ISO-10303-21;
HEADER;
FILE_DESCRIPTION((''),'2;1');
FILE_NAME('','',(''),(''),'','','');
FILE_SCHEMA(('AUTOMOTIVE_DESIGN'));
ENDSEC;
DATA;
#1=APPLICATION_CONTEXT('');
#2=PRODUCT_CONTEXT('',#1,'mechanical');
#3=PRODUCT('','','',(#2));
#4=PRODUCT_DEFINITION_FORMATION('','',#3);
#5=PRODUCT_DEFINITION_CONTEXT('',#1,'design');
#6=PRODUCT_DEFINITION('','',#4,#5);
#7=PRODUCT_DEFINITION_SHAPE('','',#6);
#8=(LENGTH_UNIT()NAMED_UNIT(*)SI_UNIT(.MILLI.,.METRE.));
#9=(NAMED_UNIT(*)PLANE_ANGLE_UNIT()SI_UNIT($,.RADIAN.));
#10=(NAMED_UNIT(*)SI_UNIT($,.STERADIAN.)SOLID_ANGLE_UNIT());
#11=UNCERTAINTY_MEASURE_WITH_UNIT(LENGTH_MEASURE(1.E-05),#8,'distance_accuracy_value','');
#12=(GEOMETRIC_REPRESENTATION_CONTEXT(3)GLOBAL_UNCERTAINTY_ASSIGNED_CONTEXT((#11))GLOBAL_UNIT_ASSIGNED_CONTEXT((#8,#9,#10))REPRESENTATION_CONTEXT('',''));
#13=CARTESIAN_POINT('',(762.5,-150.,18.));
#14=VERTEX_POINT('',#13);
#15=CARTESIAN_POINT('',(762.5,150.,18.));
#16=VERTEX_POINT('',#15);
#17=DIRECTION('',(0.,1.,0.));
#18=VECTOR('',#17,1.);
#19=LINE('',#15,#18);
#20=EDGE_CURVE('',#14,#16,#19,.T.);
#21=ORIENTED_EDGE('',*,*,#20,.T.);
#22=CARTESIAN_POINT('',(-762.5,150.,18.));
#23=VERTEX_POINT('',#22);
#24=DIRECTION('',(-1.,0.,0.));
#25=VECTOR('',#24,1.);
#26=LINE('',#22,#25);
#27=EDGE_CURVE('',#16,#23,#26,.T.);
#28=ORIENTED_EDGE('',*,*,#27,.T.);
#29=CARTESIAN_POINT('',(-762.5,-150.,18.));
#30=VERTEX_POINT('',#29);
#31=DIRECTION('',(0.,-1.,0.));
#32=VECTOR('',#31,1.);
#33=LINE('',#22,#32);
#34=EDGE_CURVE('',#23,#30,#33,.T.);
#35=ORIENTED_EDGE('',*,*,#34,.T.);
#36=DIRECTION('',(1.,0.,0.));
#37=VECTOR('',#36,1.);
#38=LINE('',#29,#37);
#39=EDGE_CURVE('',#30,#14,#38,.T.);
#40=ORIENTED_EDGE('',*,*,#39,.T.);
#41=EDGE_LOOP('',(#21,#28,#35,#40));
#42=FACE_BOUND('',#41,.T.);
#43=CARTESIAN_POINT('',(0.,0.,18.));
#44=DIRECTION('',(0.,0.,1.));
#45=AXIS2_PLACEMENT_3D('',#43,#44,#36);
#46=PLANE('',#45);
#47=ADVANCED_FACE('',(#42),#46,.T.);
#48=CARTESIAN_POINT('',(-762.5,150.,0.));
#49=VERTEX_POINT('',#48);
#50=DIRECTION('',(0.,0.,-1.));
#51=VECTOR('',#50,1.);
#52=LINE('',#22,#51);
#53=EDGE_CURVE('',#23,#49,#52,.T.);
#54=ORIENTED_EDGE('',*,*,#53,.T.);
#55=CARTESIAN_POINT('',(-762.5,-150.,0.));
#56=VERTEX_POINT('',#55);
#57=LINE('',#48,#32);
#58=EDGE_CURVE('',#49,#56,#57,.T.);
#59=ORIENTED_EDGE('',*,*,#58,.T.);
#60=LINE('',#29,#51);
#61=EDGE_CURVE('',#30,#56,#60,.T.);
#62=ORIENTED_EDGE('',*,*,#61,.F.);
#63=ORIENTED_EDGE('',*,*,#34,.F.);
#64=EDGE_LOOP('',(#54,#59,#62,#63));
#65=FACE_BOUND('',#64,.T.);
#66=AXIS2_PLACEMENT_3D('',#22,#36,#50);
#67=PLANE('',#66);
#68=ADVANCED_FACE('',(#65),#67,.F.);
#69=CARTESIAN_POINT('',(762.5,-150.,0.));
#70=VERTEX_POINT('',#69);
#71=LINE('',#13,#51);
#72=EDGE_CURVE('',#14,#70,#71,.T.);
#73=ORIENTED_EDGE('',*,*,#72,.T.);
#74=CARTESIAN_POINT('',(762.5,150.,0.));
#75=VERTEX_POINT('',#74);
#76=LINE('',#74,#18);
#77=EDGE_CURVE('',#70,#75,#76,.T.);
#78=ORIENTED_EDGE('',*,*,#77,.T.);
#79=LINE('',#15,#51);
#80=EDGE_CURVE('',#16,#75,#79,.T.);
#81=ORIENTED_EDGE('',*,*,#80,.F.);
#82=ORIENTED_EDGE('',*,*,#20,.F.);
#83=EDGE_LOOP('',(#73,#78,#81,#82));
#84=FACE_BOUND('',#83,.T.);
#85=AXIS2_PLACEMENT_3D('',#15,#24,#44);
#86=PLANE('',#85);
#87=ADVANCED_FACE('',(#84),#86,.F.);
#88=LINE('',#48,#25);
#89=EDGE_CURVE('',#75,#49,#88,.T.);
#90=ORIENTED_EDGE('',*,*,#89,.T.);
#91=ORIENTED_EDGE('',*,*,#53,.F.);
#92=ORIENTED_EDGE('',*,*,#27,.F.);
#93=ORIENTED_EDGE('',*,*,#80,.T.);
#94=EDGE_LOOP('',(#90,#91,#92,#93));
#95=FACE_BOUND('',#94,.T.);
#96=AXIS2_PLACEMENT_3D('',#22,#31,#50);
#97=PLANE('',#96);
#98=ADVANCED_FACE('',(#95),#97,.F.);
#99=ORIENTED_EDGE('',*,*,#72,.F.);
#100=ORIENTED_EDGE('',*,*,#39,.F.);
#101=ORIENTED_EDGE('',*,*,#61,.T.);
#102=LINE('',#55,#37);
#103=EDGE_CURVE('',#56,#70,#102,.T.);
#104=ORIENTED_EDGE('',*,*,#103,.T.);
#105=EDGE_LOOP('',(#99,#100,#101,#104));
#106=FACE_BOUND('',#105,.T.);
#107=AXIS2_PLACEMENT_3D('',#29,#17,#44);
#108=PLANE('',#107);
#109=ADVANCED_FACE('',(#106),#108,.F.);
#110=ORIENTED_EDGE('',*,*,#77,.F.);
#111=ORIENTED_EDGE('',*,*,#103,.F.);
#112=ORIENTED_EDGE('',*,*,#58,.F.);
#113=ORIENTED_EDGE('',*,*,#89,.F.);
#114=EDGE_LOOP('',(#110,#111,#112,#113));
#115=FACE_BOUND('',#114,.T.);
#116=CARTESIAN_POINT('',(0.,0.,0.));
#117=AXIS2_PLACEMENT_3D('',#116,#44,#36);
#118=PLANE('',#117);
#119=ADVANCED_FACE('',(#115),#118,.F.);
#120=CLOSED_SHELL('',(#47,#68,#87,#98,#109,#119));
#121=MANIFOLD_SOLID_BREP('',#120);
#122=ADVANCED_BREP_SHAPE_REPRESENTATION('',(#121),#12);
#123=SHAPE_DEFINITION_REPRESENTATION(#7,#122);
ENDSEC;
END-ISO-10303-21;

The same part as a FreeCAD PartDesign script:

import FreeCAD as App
import Part
import Sketcher

V = App.Vector


def add_polygon(sketch, points):
    """Adds a closed chain of lines whose ends are joined by coincident constraints."""
    first, n = sketch.GeometryCount, len(points)
    for a, b in zip(points, points[1:] + points[:1]):
        sketch.addGeometry(Part.LineSegment(App.Vector(*a, 0), App.Vector(*b, 0)), False)
    for i in range(n):
        sketch.addConstraint(Sketcher.Constraint("Coincident", first + i, 2, first + (i + 1) % n, 1))

doc = App.newDocument("Part")
params = doc.addObject("Spreadsheet::Sheet", "Params")
for row, (alias, value) in enumerate([
    ("sketch1_width", "1525 mm"),
    ("sketch1_height", "300 mm"),
    ("pad1_length", "18 mm"),
], start=1):
    params.set(f"A{row}", alias)
    params.set(f"B{row}", "=" + value)
    params.setAlias(f"B{row}", alias)

body = doc.addObject("PartDesign::Body", "Body")

# Sketch on XY plane
sketch1 = body.newObject("Sketcher::SketchObject", "Sketch")
sketch1.AttachmentSupport = (doc.getObject("XY_Plane"), [""])
sketch1.MapMode = "FlatFace"
add_polygon(sketch1, [(-762.5, 150), (-762.5, -150), (762.5, -150), (762.5, 150)])  # lines 0-3
sketch1.addConstraint(Sketcher.Constraint("Vertical", 0))
sketch1.addConstraint(Sketcher.Constraint("Horizontal", 1))
sketch1.addConstraint(Sketcher.Constraint("Vertical", 2))
sketch1.addConstraint(Sketcher.Constraint("Horizontal", 3))
sketch1.addConstraint(Sketcher.Constraint("Symmetric", 0, 2, 2, 2, -1, 1))
sketch1.addConstraint(Sketcher.Constraint("DistanceX", 1, 1, 1, 2, 1525.0))
sketch1.addConstraint(Sketcher.Constraint("DistanceY", 0, 2, 0, 1, 300.0))
sketch1.setExpression("Constraints[9]", "Params.sketch1_width")
sketch1.setExpression("Constraints[10]", "Params.sketch1_height")
pad1 = body.newObject("PartDesign::Pad", "Pad")
pad1.Profile = sketch1
pad1.setExpression("Length", "Params.pad1_length")

doc.recompute()
